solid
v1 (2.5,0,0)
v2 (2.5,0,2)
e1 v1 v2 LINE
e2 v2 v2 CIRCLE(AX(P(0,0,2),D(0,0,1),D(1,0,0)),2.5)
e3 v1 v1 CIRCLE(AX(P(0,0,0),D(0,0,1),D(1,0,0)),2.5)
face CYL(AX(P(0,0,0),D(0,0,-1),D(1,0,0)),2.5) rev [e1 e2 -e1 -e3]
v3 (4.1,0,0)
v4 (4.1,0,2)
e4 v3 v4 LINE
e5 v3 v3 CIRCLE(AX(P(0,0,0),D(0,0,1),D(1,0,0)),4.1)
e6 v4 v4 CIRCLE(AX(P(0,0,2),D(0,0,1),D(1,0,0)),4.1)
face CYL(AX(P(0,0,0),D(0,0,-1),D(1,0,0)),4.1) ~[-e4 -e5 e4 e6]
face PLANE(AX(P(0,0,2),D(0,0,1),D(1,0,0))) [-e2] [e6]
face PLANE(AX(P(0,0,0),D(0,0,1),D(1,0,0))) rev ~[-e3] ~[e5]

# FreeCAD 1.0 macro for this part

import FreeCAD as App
import Part
import Sketcher
Q = App.Units.Quantity

doc = App.newDocument("Part")
params = doc.addObject("Spreadsheet::Sheet", "Params")
for row, (alias, value) in enumerate([
    ("sketch1_diameter", "5 mm"),
    ("sketch1_diameter2", "8.2 mm"),
    ("pad1_length", "2 mm"),
], start=1):
    params.set(f"A{row}", alias)
    params.set(f"B{row}", "=" + value)
    params.setAlias(f"B{row}", alias)

body = doc.addObject("PartDesign::Body", "Body")

# Sketch on XY plane
sketch1 = body.newObject("Sketcher::SketchObject", "Sketch")
sketch1.AttachmentSupport = (doc.getObject("XY_Plane"), [""])
sketch1.MapMode = "FlatFace"
sketch1.addGeometry([
    Part.Circle(App.Vector(0, 0, 0), App.Vector(0, 0, 1), 4.1),
    Part.Circle(App.Vector(0, 0, 0), App.Vector(0, 0, 1), 2.5),
], False)
sketch1.addConstraint([
    Sketcher.Constraint("Coincident", 0, 3, -1, 1),
    Sketcher.Constraint("Coincident", 1, 3, -1, 1),
    Sketcher.Constraint("Diameter", 1, Q("5 mm")),
    Sketcher.Constraint("Diameter", 0, Q("8.2 mm")),
])
sketch1.setExpression("Constraints[2]", "Params.sketch1_diameter")
sketch1.setExpression("Constraints[3]", "Params.sketch1_diameter2")
pad1 = body.newObject("PartDesign::Pad", "Pad")
pad1.Profile = sketch1
pad1.setExpression("Length", "Params.pad1_length")

doc.recompute()
